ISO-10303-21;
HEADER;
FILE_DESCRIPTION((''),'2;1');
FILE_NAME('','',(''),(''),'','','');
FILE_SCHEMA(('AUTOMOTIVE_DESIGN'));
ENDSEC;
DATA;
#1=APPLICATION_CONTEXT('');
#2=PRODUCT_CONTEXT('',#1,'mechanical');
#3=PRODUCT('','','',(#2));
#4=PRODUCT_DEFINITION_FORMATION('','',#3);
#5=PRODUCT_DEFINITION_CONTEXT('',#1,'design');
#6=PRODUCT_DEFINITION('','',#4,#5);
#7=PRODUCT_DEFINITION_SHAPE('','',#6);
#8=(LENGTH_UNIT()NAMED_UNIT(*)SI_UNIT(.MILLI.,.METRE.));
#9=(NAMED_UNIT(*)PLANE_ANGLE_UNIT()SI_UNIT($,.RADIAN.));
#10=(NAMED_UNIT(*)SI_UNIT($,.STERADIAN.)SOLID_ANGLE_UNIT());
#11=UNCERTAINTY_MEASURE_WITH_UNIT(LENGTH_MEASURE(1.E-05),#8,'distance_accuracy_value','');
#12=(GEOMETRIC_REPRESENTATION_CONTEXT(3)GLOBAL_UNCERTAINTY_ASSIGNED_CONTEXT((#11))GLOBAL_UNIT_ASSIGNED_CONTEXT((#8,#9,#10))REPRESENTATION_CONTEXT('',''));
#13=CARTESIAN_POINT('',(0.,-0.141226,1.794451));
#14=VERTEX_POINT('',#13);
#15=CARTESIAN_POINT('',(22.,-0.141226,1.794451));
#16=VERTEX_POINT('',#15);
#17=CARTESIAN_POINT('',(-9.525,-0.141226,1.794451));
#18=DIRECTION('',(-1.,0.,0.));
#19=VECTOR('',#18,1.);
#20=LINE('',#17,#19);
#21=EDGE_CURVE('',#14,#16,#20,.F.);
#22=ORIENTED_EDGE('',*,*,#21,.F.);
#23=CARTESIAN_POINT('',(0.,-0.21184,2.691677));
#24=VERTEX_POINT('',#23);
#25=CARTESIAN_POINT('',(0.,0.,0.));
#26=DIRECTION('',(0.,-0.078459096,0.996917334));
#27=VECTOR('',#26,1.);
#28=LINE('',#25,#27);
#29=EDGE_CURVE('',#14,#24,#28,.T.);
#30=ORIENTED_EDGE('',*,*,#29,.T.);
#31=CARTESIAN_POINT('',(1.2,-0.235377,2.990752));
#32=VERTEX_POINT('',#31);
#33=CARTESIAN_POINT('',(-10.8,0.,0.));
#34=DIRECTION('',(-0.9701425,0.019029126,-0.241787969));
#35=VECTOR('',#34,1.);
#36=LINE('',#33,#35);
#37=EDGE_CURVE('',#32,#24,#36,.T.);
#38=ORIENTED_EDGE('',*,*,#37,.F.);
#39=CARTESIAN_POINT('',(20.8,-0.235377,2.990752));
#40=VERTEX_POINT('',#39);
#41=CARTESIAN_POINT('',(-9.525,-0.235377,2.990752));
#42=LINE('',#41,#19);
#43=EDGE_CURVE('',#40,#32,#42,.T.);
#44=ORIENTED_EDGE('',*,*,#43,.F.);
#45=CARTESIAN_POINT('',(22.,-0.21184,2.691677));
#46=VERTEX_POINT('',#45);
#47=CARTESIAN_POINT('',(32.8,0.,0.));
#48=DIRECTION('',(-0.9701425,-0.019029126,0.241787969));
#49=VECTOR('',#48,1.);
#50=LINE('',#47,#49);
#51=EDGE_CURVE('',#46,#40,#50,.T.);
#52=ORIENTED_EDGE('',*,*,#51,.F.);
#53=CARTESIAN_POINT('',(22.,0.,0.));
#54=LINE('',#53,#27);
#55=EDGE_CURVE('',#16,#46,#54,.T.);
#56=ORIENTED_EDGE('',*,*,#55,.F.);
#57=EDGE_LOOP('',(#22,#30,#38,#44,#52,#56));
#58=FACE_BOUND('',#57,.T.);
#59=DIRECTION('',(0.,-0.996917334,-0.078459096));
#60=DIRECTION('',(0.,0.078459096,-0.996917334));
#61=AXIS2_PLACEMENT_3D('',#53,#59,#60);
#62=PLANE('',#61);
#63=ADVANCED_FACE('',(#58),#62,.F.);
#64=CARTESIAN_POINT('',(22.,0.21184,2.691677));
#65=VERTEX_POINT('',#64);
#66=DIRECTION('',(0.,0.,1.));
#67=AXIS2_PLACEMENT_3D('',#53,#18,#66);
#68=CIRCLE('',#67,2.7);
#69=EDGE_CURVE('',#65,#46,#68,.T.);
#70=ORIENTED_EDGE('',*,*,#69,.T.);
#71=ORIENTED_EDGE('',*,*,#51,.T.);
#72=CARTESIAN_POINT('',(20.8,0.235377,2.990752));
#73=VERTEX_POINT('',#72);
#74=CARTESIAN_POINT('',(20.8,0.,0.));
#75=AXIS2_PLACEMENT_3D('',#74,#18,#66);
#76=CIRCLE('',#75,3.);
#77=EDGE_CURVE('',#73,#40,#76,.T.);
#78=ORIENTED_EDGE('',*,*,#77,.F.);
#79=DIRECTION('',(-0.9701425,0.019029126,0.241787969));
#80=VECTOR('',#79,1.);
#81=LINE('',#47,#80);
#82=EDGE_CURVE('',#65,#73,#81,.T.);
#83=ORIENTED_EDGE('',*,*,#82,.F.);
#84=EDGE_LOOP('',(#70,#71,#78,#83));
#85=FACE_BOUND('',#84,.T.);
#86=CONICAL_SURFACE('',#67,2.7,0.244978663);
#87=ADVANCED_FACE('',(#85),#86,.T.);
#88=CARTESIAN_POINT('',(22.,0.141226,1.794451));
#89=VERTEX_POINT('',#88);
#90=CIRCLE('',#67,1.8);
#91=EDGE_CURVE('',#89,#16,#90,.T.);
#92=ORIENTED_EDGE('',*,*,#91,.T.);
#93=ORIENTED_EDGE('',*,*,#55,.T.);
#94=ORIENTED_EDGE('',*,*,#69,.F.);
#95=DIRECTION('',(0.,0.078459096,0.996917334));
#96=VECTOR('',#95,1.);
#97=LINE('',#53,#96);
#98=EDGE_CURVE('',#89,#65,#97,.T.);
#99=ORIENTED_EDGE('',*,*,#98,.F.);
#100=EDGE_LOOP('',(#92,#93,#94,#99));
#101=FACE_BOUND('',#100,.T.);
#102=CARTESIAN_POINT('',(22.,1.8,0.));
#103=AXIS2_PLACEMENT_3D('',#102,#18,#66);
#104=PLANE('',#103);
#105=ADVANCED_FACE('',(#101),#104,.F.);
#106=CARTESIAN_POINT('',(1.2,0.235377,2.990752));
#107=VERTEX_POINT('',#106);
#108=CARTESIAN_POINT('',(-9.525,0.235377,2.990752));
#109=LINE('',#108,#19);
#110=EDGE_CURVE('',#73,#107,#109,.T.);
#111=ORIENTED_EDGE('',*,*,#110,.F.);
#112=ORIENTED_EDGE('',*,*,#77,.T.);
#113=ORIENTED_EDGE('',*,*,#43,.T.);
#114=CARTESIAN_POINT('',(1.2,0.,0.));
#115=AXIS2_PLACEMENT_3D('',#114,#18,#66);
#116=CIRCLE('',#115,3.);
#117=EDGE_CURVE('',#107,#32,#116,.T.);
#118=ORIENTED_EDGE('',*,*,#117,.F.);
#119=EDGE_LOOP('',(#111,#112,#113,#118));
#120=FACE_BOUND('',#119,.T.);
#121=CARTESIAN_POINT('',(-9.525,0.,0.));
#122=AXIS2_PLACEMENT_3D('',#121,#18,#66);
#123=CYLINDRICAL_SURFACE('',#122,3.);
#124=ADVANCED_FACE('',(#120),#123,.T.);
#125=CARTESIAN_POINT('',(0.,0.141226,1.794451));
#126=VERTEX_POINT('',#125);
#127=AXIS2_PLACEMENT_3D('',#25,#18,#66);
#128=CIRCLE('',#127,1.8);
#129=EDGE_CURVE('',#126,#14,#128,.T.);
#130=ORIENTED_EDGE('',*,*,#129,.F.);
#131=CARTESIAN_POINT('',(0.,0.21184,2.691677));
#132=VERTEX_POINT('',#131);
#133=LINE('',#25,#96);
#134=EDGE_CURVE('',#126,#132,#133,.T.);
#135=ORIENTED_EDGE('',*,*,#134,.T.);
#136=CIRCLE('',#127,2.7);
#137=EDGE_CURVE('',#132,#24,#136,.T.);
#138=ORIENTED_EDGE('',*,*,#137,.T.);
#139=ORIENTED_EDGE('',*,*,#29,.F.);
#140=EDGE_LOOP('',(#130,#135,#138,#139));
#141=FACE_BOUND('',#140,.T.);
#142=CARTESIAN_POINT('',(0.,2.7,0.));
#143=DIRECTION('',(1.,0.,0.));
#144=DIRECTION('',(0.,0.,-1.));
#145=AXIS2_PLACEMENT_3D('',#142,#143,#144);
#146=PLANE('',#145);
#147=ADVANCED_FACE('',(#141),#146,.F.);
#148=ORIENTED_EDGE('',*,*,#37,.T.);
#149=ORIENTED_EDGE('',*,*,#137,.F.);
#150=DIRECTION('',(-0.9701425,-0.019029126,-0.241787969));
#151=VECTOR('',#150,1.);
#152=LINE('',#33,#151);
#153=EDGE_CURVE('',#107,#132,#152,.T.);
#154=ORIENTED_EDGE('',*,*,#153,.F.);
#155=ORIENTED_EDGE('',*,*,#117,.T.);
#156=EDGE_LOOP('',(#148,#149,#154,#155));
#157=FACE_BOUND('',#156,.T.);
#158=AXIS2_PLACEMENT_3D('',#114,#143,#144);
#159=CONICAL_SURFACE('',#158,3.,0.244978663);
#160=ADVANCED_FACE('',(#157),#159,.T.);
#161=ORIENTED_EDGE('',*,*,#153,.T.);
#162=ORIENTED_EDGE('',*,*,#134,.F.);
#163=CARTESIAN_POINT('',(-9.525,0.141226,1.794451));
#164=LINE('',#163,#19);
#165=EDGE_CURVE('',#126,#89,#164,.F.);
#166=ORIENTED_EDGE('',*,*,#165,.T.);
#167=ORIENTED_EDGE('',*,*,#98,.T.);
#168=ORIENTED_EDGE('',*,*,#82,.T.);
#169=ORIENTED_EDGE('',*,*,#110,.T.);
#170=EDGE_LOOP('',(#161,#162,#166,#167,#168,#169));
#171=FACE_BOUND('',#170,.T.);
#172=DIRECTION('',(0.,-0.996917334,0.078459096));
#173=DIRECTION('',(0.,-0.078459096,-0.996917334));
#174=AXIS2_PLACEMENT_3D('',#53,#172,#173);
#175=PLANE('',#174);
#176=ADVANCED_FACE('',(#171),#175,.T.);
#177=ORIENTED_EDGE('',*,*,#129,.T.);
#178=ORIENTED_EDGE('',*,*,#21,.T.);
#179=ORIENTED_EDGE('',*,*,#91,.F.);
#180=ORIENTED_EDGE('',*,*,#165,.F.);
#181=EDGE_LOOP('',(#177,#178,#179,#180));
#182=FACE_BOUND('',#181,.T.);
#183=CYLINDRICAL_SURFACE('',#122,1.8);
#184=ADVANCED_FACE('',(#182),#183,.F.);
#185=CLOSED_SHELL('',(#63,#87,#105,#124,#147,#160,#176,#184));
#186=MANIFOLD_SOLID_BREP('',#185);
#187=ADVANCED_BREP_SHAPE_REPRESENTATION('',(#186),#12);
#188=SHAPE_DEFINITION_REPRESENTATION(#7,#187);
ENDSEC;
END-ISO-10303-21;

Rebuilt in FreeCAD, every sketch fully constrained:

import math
import FreeCAD as App
import Part
import Sketcher
Q = App.Units.Quantity


def add_polygon(sketch, points):
    """Adds a closed chain of lines whose ends are joined by coincident constraints."""
    first, n = sketch.GeometryCount, len(points)
    for a, b in zip(points, points[1:] + points[:1]):
        sketch.addGeometry(Part.LineSegment(App.Vector(*a, 0), App.Vector(*b, 0)), False)
    for i in range(n):
        sketch.addConstraint(Sketcher.Constraint("Coincident", first + i, 2, first + (i + 1) % n, 1))

doc = App.newDocument("Part")
body = doc.addObject("PartDesign::Body", "Body")

sketch1 = doc.addObject("Sketcher::SketchObject", "Sketch")
body.addObject(sketch1)
sketch1.AttachmentSupport = (doc.XY_Plane, [""])
sketch1.MapMode = "FlatFace"
add_polygon(sketch1, [(0, 1.8), (22, 1.8), (22, 2.7), (20.8, 3), (1.2, 3), (0, 2.7)])
sketch1.addConstraint(Sketcher.Constraint("Horizontal", 0))
sketch1.addConstraint(Sketcher.Constraint("Vertical", 1))
sketch1.addConstraint(Sketcher.Constraint("Horizontal", 3))
sketch1.addConstraint(Sketcher.Constraint("Vertical", 5))
sketch1.addConstraint(Sketcher.Constraint("PointOnObject", 4, 2, -2))
sketch1.addConstraint(Sketcher.Constraint("Horizontal", 1, 2, 4, 2))
sketch1.addConstraint(Sketcher.Constraint("Equal", 2, 4))
sketch1.addConstraint(Sketcher.Constraint("DistanceX", 0, 1, 0, 2, Q("22 mm")))
sketch1.addConstraint(Sketcher.Constraint("DistanceX", 3, 2, 3, 1, Q("19.6 mm")))
sketch1.addConstraint(Sketcher.Constraint("DistanceY", 1, 1, 1, 2, Q("0.9 mm")))
sketch1.addConstraint(Sketcher.Constraint("DistanceY", -1, 1, 2, 2, Q("3 mm")))
sketch1.addConstraint(Sketcher.Constraint("DistanceY", -1, 1, 0, 2, Q("1.8 mm")))
revolution = doc.addObject("PartDesign::Revolution", "Revolution")
body.addObject(revolution)
revolution.Profile = sketch1
revolution.ReferenceAxis = (sketch1, ["H_Axis"])
revolution.Angle = 360

sketch2 = doc.addObject("Sketcher::SketchObject", "Sketch001")
body.addObject(sketch2)
sketch2.AttachmentSupport = (doc.YZ_Plane, [""])
sketch2.MapMode = "FlatFace"
sketch2.addGeometry(Part.LineSegment(App.Vector(0, 0, 0), App.Vector(-0.24, 3.05, 0)), False)
sketch2.addGeometry(Part.ArcOfCircle(Part.Circle(App.Vector(0, 0, 0), App.Vector(0, 0, 1), 3.06), math.radians(85.5), math.radians(94.5)), False)
sketch2.addGeometry(Part.LineSegment(App.Vector(0.24, 3.05, 0), App.Vector(0, 0, 0)), False)
sketch2.addConstraint(Sketcher.Constraint("Coincident", 0, 2, 1, 2))
sketch2.addConstraint(Sketcher.Constraint("Coincident", 1, 1, 2, 1))
sketch2.addConstraint(Sketcher.Constraint("Coincident", 2, 2, 0, 1))
sketch2.addConstraint(Sketcher.Constraint("Coincident", 1, 3, -1, 1))
sketch2.addConstraint(Sketcher.Constraint("Coincident", 2, 2, -1, 1))
sketch2.addConstraint(Sketcher.Constraint("Horizontal", 0, 2, 1, 1))
sketch2.addConstraint(Sketcher.Constraint("Radius", 1, Q("3.06 mm")))
sketch2.addConstraint(Sketcher.Constraint("Angle", 0, Q("94.5 deg")))
pocket1 = doc.addObject("PartDesign::Pocket", "Pocket")
body.addObject(pocket1)
pocket1.Profile = sketch2
pocket1.Type = "ThroughAll"
pocket1.Reversed = True

doc.recompute()
